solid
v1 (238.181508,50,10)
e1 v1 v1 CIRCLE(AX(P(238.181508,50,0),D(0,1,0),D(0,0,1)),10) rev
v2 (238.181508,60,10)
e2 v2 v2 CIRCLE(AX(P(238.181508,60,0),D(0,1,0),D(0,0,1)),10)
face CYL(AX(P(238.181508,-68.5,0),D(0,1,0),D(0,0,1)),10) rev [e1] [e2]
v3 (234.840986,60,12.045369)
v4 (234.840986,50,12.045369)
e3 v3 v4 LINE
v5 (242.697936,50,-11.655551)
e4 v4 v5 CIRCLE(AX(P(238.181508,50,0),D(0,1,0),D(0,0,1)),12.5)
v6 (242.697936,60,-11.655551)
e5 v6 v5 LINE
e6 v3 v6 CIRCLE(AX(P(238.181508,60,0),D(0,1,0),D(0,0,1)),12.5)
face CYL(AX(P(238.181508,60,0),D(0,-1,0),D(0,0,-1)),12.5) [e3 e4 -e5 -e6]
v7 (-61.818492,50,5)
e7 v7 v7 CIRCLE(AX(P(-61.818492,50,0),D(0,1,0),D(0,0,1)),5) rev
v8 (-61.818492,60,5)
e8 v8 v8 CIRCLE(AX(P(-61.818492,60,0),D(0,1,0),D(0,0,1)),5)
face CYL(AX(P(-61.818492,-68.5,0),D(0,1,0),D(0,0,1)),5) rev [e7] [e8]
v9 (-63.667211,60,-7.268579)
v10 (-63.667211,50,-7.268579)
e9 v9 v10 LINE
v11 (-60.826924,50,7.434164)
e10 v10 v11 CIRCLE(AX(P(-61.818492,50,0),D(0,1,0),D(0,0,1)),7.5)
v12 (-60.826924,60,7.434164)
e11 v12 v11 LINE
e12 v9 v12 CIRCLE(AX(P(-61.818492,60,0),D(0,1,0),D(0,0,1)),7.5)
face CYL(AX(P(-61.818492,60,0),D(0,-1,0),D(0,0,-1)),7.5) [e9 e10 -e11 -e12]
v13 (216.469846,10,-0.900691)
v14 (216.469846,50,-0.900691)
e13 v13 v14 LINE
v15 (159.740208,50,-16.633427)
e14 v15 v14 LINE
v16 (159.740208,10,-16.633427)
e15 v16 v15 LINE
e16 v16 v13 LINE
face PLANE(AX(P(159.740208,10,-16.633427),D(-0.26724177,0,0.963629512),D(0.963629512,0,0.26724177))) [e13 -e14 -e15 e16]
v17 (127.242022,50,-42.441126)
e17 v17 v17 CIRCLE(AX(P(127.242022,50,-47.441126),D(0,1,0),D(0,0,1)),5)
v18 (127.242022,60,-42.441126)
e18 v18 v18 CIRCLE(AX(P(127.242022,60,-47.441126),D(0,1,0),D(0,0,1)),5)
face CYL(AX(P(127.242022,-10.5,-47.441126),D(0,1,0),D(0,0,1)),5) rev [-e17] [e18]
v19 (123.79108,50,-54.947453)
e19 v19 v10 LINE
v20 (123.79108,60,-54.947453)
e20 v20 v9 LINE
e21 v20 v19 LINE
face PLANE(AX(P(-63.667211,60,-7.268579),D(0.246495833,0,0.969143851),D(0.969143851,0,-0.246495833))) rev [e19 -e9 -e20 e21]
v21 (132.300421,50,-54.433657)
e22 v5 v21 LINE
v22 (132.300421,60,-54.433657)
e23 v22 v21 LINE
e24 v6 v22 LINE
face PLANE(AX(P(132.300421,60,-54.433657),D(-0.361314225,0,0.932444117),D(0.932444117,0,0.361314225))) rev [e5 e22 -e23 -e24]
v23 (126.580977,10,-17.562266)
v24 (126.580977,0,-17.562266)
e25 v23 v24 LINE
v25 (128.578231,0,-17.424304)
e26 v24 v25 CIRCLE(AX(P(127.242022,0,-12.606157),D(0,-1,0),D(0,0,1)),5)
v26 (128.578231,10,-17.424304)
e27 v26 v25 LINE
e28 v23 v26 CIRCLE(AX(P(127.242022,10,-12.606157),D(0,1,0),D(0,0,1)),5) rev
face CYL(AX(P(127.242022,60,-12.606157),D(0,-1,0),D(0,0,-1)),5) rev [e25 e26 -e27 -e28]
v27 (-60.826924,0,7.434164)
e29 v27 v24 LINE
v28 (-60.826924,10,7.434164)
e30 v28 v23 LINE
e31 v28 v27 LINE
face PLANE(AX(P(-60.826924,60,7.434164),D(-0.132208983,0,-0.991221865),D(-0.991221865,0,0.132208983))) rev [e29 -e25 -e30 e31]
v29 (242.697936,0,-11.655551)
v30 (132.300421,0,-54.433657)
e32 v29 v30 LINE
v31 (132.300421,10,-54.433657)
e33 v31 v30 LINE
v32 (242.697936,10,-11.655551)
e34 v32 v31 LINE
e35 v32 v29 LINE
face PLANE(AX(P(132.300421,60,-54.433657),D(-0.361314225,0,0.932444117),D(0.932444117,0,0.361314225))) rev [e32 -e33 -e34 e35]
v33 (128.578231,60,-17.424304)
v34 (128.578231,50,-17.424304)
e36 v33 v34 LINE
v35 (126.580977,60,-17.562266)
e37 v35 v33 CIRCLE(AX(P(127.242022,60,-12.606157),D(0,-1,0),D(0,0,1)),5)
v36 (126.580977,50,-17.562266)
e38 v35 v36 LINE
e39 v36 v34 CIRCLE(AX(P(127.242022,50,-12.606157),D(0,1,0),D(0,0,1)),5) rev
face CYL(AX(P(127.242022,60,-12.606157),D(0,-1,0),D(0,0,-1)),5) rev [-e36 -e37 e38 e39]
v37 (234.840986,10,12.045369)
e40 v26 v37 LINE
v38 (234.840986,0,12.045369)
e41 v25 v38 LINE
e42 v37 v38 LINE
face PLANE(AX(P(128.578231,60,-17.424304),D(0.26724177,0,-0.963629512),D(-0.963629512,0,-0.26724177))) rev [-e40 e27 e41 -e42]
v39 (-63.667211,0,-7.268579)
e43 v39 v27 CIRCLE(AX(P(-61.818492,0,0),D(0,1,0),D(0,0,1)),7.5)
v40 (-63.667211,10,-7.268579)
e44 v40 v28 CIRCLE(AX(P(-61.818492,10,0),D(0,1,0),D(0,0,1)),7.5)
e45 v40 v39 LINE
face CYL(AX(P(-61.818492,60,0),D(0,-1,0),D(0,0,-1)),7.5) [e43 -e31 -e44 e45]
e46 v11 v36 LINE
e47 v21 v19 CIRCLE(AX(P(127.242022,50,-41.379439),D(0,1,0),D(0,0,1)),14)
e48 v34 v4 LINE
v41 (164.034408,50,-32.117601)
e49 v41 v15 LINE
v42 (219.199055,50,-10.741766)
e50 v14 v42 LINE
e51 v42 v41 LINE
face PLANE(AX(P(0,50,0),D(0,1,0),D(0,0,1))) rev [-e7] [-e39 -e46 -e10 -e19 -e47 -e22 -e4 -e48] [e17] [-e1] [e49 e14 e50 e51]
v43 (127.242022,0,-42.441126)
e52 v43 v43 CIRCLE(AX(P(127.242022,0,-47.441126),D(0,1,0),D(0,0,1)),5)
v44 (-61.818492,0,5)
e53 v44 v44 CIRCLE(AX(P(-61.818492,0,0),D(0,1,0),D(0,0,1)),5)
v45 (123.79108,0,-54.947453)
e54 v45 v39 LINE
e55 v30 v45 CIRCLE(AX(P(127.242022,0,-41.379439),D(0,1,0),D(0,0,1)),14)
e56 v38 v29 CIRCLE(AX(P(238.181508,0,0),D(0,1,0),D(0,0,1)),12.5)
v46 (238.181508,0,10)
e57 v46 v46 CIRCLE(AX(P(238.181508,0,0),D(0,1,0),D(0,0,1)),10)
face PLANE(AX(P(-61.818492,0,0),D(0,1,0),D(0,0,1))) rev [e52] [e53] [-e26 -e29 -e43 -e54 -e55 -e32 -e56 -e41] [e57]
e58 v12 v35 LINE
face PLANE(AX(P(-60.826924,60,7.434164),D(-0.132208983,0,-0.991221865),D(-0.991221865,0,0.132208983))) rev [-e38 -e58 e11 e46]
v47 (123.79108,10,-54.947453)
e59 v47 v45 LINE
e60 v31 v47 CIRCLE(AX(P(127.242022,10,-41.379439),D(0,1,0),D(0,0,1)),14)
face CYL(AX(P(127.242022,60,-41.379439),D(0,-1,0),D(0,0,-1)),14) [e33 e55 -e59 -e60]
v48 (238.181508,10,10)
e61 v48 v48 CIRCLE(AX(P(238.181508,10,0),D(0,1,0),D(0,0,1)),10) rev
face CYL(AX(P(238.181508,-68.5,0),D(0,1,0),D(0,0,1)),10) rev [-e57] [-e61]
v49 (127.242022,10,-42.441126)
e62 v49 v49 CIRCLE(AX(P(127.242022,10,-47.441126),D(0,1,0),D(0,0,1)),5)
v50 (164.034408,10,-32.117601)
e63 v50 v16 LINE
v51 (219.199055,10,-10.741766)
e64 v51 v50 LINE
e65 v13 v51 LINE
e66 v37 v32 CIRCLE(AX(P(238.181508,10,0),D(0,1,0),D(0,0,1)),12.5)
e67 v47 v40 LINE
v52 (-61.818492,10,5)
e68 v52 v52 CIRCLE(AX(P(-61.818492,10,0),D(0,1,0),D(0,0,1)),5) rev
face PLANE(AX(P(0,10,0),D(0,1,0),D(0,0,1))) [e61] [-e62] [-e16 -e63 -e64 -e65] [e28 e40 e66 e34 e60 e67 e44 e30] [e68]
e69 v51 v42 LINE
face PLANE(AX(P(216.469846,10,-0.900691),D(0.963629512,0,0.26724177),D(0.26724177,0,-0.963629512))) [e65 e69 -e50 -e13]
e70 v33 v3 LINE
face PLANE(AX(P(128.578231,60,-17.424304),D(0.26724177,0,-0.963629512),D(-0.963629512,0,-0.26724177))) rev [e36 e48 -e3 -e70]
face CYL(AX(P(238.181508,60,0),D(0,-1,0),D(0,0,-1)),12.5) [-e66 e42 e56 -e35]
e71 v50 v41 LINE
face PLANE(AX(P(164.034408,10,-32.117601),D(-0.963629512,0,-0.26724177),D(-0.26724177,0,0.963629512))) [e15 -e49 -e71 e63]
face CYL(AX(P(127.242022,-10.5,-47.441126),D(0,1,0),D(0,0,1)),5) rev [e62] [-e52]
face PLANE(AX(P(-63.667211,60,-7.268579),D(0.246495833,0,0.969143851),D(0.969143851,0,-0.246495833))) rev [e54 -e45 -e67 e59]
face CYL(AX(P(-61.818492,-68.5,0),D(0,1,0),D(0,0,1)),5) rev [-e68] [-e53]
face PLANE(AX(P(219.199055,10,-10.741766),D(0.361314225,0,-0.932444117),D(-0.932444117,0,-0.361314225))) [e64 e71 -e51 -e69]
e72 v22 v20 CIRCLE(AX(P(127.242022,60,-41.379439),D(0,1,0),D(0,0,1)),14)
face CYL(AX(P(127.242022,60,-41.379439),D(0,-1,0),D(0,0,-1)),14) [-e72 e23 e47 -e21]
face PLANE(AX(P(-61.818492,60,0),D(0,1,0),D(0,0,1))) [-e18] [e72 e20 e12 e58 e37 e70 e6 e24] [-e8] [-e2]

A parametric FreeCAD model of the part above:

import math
import FreeCAD as App
import Part
import Sketcher

doc = App.newDocument("Part")
params = doc.addObject("Spreadsheet::Sheet", "Params")
for row, (alias, value) in enumerate([
    ("sketch1_radius", "5 mm"),
    ("sketch1_radius2", "14 mm"),
    ("sketch1_radius3", "7.5 mm"),
    ("sketch1_radius4", "12.5 mm"),
    ("pad1_length", "60 mm"),
    ("sketch2_diameter", "20 mm"),
    ("sketch2_diameter2", "10 mm"),
    ("pocket1_length", "197 mm"),
    ("pocket2_length", "40 mm"),
    ("sketch4_diameter", "10 mm"),
    ("pocket3_length", "81 mm"),
], start=1):
    params.set(f"A{row}", alias)
    params.set(f"B{row}", "=" + value)
    params.setAlias(f"B{row}", alias)

body = doc.addObject("PartDesign::Body", "Body")

sketch1 = doc.addObject("Sketcher::SketchObject", "Sketch")
body.addObject(sketch1)
sketch1.AttachmentSupport = (doc.XZ_Plane, [""])
sketch1.MapMode = "FlatFace"
sketch1.addGeometry([
    Part.LineSegment(App.Vector(123.8, -54.9, 0), App.Vector(-63.7, -7.3, 0)),
    Part.ArcOfCircle(Part.Circle(App.Vector(-61.8, 0, 0), App.Vector(0, 0, 1), 7.5), math.radians(82), math.radians(256)),
    Part.LineSegment(App.Vector(-60.8, 7.4, 0), App.Vector(126.6, -17.6, 0)),
    Part.ArcOfCircle(Part.Circle(App.Vector(127.2, -12.6, 0), App.Vector(0, 0, 1), 5), math.radians(-98), math.radians(-74)),
    Part.LineSegment(App.Vector(128.6, -17.4, 0), App.Vector(234.8, 12, 0)),
    Part.ArcOfCircle(Part.Circle(App.Vector(238.2, 0, 0), App.Vector(0, 0, 1), 12.5), math.radians(-69), math.radians(106)),
    Part.LineSegment(App.Vector(242.7, -11.7, 0), App.Vector(132.3, -54.4, 0)),
    Part.ArcOfCircle(Part.Circle(App.Vector(127.2, -41.4, 0), App.Vector(0, 0, 1), 14), math.radians(-104), math.radians(-69)),
], False)
sketch1.addConstraint([
    Sketcher.Constraint("Tangent", 0, 2, 1, 2),
    Sketcher.Constraint("Tangent", 1, 1, 2, 1),
    Sketcher.Constraint("Tangent", 2, 2, 3, 1),
    Sketcher.Constraint("Tangent", 3, 2, 4, 1),
    Sketcher.Constraint("Tangent", 4, 2, 5, 2),
    Sketcher.Constraint("Tangent", 5, 1, 6, 1),
    Sketcher.Constraint("Tangent", 6, 2, 7, 2),
    Sketcher.Constraint("Tangent", 7, 1, 0, 1),
    Sketcher.Constraint("PointOnObject", 1, 3, -1),
    Sketcher.Constraint("PointOnObject", 5, 3, -1),
    Sketcher.Constraint("Vertical", 3, 3, 7, 3),
    Sketcher.Constraint("Radius", 3, 5.0),
    Sketcher.Constraint("Radius", 7, 14.0),
    Sketcher.Constraint("Radius", 1, 7.5),
    Sketcher.Constraint("Radius", 5, 12.5),
    Sketcher.Constraint("DistanceX", 1, 3, 5, 3, 300.0),
    Sketcher.Constraint("DistanceX", 1, 1, 2, 2, 187.407902),
    Sketcher.Constraint("DistanceX", 7, 3, 6, 2, 5.058399),
    Sketcher.Constraint("DistanceY", 6, 2, 3, 3, 41.8275),
    Sketcher.Constraint("DistanceX", 1, 3, -1, 1, 61.818492),
])
sketch1.setExpression("Constraints[11]", "Params.sketch1_radius")
sketch1.setExpression("Constraints[12]", "Params.sketch1_radius2")
sketch1.setExpression("Constraints[13]", "Params.sketch1_radius3")
sketch1.setExpression("Constraints[14]", "Params.sketch1_radius4")
pad1 = doc.addObject("PartDesign::Pad", "Pad")
body.addObject(pad1)
pad1.Profile = sketch1
pad1.setExpression("Length", "Params.pad1_length")
pad1.Reversed = True

sketch2 = doc.addObject("Sketcher::SketchObject", "Sketch001")
body.addObject(sketch2)
sketch2.AttachmentSupport = (doc.XZ_Plane, [""])
sketch2.MapMode = "FlatFace"
sketch2.AttachmentOffset = App.Placement(App.Vector(0, 0, -30), App.Rotation())
sketch2.addGeometry([
    Part.Circle(App.Vector(238, 0, 0), App.Vector(0, 0, 1), 10),
    Part.Circle(App.Vector(-62, 0, 0), App.Vector(0, 0, 1), 5),
], False)
sketch2.addConstraint([
    Sketcher.Constraint("PointOnObject", 0, 3, -1),
    Sketcher.Constraint("PointOnObject", 1, 3, -1),
    Sketcher.Constraint("Diameter", 0, 20.0),
    Sketcher.Constraint("Diameter", 1, 10.0),
    Sketcher.Constraint("DistanceX", 1, 3, 0, 3, 300.0),
    Sketcher.Constraint("DistanceX", -1, 1, 0, 3, 238.181508),
])
sketch2.setExpression("Constraints[2]", "Params.sketch2_diameter")
sketch2.setExpression("Constraints[3]", "Params.sketch2_diameter2")
pocket1 = doc.addObject("PartDesign::Pocket", "Pocket")
body.addObject(pocket1)
pocket1.Profile = sketch2
pocket1.setExpression("Length", "Params.pocket1_length")
pocket1.Midplane = True

sketch3 = doc.addObject("Sketcher::SketchObject", "Sketch002")
body.addObject(sketch3)
sketch3.AttachmentSupport = (doc.XZ_Plane, [""])
sketch3.MapMode = "FlatFace"
sketch3.AttachmentOffset = App.Placement(App.Vector(0, 0, -30), App.Rotation())
sketch3.addGeometry([
    Part.LineSegment(App.Vector(-99, -87, 0), App.Vector(-99, 38, 0)),
    Part.LineSegment(App.Vector(-99, 38, 0), App.Vector(279, 38, 0)),
    Part.LineSegment(App.Vector(279, 38, 0), App.Vector(279, -87, 0)),
    Part.LineSegment(App.Vector(279, -87, 0), App.Vector(-99, -87, 0)),
    Part.LineSegment(App.Vector(216, -1, 0), App.Vector(160, -17, 0)),
    Part.LineSegment(App.Vector(160, -17, 0), App.Vector(164, -32, 0)),
    Part.LineSegment(App.Vector(164, -32, 0), App.Vector(219, -11, 0)),
    Part.LineSegment(App.Vector(219, -11, 0), App.Vector(216, -1, 0)),
], False)
sketch3.addConstraint([
    Sketcher.Constraint("Coincident", 0, 2, 1, 1),
    Sketcher.Constraint("Coincident", 1, 2, 2, 1),
    Sketcher.Constraint("Coincident", 2, 2, 3, 1),
    Sketcher.Constraint("Coincident", 3, 2, 0, 1),
    Sketcher.Constraint("Coincident", 4, 2, 5, 1),
    Sketcher.Constraint("Coincident", 5, 2, 6, 1),
    Sketcher.Constraint("Coincident", 6, 2, 7, 1),
    Sketcher.Constraint("Coincident", 7, 2, 4, 1),
    Sketcher.Constraint("Vertical", 0),
    Sketcher.Constraint("Horizontal", 1),
    Sketcher.Constraint("Vertical", 2),
    Sketcher.Constraint("Horizontal", 3),
    Sketcher.Constraint("Perpendicular", 4, 5),
    Sketcher.Constraint("Parallel", 5, 7),
    Sketcher.Constraint("Distance", 4, 58.870798),
    Sketcher.Constraint("DistanceY", 0, 1, 0, 2, 125.45158),
    Sketcher.Constraint("DistanceY", 5, 2, -1, 1, 32.117601),
    Sketcher.Constraint("DistanceX", 4, 2, 5, 2, 4.2942),
    Sketcher.Constraint("Distance", 7, 10.212509),
    Sketcher.Constraint("DistanceX", 1, 1, 1, 2, 377.105947),
    Sketcher.Constraint("DistanceY", -1, 1, 0, 2, 38.021658),
    Sketcher.Constraint("DistanceY", 7, 2, -1, 1, 0.900691),
    Sketcher.Constraint("DistanceX", 0, 2, 6, 2, 317.70533),
    Sketcher.Constraint("DistanceX", 0, 2, -1, 1, 98.506275),
])
pocket2 = doc.addObject("PartDesign::Pocket", "Pocket001")
body.addObject(pocket2)
pocket2.Profile = sketch3
pocket2.setExpression("Length", "Params.pocket2_length")
pocket2.Midplane = True

sketch4 = doc.addObject("Sketcher::SketchObject", "Sketch003")
body.addObject(sketch4)
sketch4.AttachmentSupport = (doc.XZ_Plane, [""])
sketch4.MapMode = "FlatFace"
sketch4.AttachmentOffset = App.Placement(App.Vector(0, 0, -30), App.Rotation())
sketch4.addGeometry(Part.Circle(App.Vector(127, -47, 0), App.Vector(0, 0, 1), 5), False)
sketch4.addConstraint([
    Sketcher.Constraint("Diameter", 0, 10.0),
    Sketcher.Constraint("DistanceX", -1, 1, 0, 3, 127.242022),
    Sketcher.Constraint("DistanceY", 0, 3, -1, 1, 47.441126),
])
sketch4.setExpression("Constraints[0]", "Params.sketch4_diameter")
pocket3 = doc.addObject("PartDesign::Pocket", "Pocket002")
body.addObject(pocket3)
pocket3.Profile = sketch4
pocket3.setExpression("Length", "Params.pocket3_length")
pocket3.Midplane = True

doc.recompute()
